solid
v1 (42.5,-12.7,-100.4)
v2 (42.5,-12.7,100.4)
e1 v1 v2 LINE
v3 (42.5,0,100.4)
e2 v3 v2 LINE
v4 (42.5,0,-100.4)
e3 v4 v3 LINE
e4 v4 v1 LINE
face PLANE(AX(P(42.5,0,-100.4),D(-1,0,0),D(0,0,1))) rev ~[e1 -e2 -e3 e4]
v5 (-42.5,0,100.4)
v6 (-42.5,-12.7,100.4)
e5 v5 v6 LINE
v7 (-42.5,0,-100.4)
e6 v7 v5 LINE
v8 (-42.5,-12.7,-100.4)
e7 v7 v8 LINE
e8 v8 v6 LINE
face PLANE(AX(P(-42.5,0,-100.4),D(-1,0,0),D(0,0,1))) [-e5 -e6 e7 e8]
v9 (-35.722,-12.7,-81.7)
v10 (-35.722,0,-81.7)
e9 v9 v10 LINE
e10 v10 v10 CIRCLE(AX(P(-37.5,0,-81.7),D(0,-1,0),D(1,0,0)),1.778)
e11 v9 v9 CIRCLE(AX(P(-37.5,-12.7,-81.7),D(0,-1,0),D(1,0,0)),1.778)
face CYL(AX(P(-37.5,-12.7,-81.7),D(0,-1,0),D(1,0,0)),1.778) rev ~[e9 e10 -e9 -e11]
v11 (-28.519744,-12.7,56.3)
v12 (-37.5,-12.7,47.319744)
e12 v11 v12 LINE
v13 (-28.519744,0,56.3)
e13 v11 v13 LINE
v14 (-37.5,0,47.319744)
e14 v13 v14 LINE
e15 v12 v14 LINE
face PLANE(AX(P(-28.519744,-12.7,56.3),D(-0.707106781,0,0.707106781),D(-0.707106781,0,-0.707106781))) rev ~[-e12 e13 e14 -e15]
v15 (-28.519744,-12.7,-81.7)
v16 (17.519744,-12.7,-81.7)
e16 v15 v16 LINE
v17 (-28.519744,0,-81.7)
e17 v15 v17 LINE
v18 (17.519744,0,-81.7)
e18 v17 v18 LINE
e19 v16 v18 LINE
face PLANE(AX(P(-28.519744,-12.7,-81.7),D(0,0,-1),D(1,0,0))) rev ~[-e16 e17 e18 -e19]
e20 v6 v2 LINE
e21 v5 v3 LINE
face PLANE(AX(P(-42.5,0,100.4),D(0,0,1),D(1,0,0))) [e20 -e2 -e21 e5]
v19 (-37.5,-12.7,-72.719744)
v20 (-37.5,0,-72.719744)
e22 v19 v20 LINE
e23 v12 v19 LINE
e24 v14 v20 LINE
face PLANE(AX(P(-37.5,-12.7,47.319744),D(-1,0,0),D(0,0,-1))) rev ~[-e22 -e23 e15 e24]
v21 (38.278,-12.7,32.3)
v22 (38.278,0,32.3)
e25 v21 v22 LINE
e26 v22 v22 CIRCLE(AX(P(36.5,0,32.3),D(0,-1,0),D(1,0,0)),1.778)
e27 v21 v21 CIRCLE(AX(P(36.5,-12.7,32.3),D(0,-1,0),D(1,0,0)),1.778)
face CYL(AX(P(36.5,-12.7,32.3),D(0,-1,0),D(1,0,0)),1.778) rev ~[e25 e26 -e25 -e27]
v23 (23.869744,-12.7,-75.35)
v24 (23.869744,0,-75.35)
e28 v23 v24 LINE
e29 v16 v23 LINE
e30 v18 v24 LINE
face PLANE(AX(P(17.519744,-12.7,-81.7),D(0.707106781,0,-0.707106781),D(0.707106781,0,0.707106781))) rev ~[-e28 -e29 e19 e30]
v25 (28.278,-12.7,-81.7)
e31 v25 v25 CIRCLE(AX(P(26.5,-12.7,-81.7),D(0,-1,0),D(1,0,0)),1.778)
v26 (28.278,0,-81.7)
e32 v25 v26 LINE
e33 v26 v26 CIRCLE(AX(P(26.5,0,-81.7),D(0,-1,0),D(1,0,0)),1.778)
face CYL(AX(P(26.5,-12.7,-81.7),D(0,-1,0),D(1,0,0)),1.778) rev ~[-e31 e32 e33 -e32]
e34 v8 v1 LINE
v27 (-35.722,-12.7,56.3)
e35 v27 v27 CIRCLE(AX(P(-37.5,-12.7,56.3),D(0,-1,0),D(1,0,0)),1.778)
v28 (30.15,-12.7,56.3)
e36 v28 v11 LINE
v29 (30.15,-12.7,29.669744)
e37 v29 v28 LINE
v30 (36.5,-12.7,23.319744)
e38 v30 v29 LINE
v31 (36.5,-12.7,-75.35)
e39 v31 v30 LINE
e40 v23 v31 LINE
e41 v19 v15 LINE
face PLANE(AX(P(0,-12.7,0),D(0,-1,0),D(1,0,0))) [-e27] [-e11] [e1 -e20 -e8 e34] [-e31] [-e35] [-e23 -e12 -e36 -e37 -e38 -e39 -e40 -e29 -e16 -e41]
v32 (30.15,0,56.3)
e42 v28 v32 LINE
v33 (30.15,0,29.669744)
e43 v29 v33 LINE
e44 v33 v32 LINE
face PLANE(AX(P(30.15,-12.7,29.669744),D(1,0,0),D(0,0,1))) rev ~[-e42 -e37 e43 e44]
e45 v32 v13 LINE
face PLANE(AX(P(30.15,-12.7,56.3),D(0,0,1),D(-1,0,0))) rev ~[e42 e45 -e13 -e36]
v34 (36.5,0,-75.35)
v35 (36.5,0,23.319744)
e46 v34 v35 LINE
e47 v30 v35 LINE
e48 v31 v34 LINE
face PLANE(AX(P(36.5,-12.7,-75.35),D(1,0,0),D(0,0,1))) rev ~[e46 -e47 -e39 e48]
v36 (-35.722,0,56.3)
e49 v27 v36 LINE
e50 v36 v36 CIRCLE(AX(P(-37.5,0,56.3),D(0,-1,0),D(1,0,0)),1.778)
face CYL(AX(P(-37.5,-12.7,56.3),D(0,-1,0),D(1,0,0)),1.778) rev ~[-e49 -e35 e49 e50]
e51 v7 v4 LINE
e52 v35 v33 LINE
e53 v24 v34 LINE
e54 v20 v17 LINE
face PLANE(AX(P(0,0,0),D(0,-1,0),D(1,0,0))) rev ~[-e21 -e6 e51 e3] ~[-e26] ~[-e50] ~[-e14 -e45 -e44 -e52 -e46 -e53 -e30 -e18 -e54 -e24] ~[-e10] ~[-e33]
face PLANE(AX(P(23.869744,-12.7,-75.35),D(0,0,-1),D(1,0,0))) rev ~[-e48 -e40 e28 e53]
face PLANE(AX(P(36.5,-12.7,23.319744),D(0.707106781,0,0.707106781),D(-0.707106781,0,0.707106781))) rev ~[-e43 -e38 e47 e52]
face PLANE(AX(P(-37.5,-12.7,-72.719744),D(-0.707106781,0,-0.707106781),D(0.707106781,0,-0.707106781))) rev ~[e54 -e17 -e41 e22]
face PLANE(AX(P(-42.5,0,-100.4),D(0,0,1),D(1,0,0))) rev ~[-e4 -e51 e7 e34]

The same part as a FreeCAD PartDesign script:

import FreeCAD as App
import Part
import Sketcher
from FreeCAD import Vector

doc = App.newDocument("Part")
body = doc.addObject("PartDesign::Body", "Body")

# Sketch on XZ plane
sketch1 = body.newObject("Sketcher::SketchObject", "Sketch")
sketch1.AttachmentSupport = (doc.getObject("XZ_Plane"), [""])
sketch1.MapMode = "FlatFace"
sketch1.addGeometry([
    Part.LineSegment(Vector(-42.5, 100.4, 0), Vector(-42.5, -100.4, 0)),
    Part.LineSegment(Vector(-42.5, -100.4, 0), Vector(42.5, -100.4, 0)),
    Part.LineSegment(Vector(42.5, -100.4, 0), Vector(42.5, 100.4, 0)),
    Part.LineSegment(Vector(42.5, 100.4, 0), Vector(-42.5, 100.4, 0)),
], False)
sketch1.addConstraint([
    Sketcher.Constraint("Coincident", 0, 2, 1, 1),
    Sketcher.Constraint("Coincident", 1, 2, 2, 1),
    Sketcher.Constraint("Coincident", 2, 2, 3, 1),
    Sketcher.Constraint("Coincident", 3, 2, 0, 1),
    Sketcher.Constraint("Vertical", 0),
    Sketcher.Constraint("Horizontal", 1),
    Sketcher.Constraint("Vertical", 2),
    Sketcher.Constraint("Horizontal", 3),
    Sketcher.Constraint("Symmetric", 0, 2, 2, 2, -1, 1),
    Sketcher.Constraint("DistanceX", 1, 1, 1, 2, 85.0),
    Sketcher.Constraint("DistanceY", 0, 2, 0, 1, 200.8),
])
pad1 = body.newObject("PartDesign::Pad", "Pad")
pad1.Profile = sketch1
pad1.Length = 12.7

# Sketch on XZ plane
sketch2 = body.newObject("Sketcher::SketchObject", "Sketch001")
sketch2.AttachmentSupport = (doc.getObject("XZ_Plane"), [""])
sketch2.MapMode = "FlatFace"
sketch2.AttachmentOffset = App.Placement(Vector(0, 0, 12.7), App.Rotation())
sketch2.addGeometry([
    Part.Circle(Vector(-37.5, 56.3, 0), Vector(0, 0, 1), 1.778),
    Part.Circle(Vector(36.5, 32.3, 0), Vector(0, 0, 1), 1.778),
    Part.Circle(Vector(26.5, -81.7, 0), Vector(0, 0, 1), 1.778),
    Part.Circle(Vector(-37.5, -81.7, 0), Vector(0, 0, 1), 1.778),
], False)
sketch2.addConstraint([
    Sketcher.Constraint("Equal", 0, 1),
    Sketcher.Constraint("Equal", 1, 2),
    Sketcher.Constraint("Equal", 2, 3),
    Sketcher.Constraint("Horizontal", 2, 3, 3, 3),
    Sketcher.Constraint("Vertical", 0, 3, 3, 3),
    Sketcher.Constraint("Diameter", 0, 3.556),
    Sketcher.Constraint("DistanceX", 0, 3, 1, 3, 74.0),
    Sketcher.Constraint("DistanceY", 1, 3, 0, 3, 24.0),
    Sketcher.Constraint("DistanceX", 2, 3, 1, 3, 10.0),
    Sketcher.Constraint("DistanceY", 2, 3, 1, 3, 114.0),
    Sketcher.Constraint("DistanceX", 0, 3, -1, 1, 37.5),
    Sketcher.Constraint("DistanceY", -1, 1, 0, 3, 56.3),
])
pocket1 = body.newObject("PartDesign::Pocket", "Pocket")
pocket1.Profile = sketch2
pocket1.Type = "ThroughAll"

# Sketch on XZ plane
sketch3 = body.newObject("Sketcher::SketchObject", "Sketch002")
sketch3.AttachmentSupport = (doc.getObject("XZ_Plane"), [""])
sketch3.MapMode = "FlatFace"
sketch3.AttachmentOffset = App.Placement(Vector(0, 0, 12.7), App.Rotation())
sketch3.addGeometry([
    Part.LineSegment(Vector(-28.519744, 56.3, 0), Vector(-37.5, 47.319744, 0)),  # 0
    Part.LineSegment(Vector(-37.5, 47.319744, 0), Vector(-37.5, -72.719744, 0)),  # 1
    Part.LineSegment(Vector(-37.5, -72.719744, 0), Vector(-28.519744, -81.7, 0)),  # 2
    Part.LineSegment(Vector(-28.519744, -81.7, 0), Vector(17.519744, -81.7, 0)),  # 3
    Part.LineSegment(Vector(17.519744, -81.7, 0), Vector(23.869744, -75.35, 0)),  # 4
    Part.LineSegment(Vector(23.869744, -75.35, 0), Vector(36.5, -75.35, 0)),  # 5
    Part.LineSegment(Vector(36.5, -75.35, 0), Vector(36.5, 23.319744, 0)),  # 6
    Part.LineSegment(Vector(36.5, 23.319744, 0), Vector(30.15, 29.669744, 0)),  # 7
    Part.LineSegment(Vector(30.15, 29.669744, 0), Vector(30.15, 56.3, 0)),  # 8
    Part.LineSegment(Vector(30.15, 56.3, 0), Vector(-28.519744, 56.3, 0)),  # 9
    Part.Circle(Vector(36.5, 32.3, 0), Vector(0, 0, 1), 1.778),  # 10
    Part.Circle(Vector(-37.5, -81.7, 0), Vector(0, 0, 1), 1.778),  # 11
    Part.Circle(Vector(26.5, -81.7, 0), Vector(0, 0, 1), 1.778),  # 12
], False)
sketch3.addConstraint([
    Sketcher.Constraint("Coincident", 0, 2, 1, 1),
    Sketcher.Constraint("Coincident", 1, 2, 2, 1),
    Sketcher.Constraint("Coincident", 2, 2, 3, 1),
    Sketcher.Constraint("Coincident", 3, 2, 4, 1),
    Sketcher.Constraint("Coincident", 4, 2, 5, 1),
    Sketcher.Constraint("Coincident", 5, 2, 6, 1),
    Sketcher.Constraint("Coincident", 6, 2, 7, 1),
    Sketcher.Constraint("Coincident", 7, 2, 8, 1),
    Sketcher.Constraint("Coincident", 8, 2, 9, 1),
    Sketcher.Constraint("Coincident", 9, 2, 0, 1),
    Sketcher.Constraint("Vertical", 1),
    Sketcher.Constraint("Horizontal", 3),
    Sketcher.Constraint("Horizontal", 5),
    Sketcher.Constraint("Vertical", 6),
    Sketcher.Constraint("Vertical", 8),
    Sketcher.Constraint("Horizontal", 9),
    Sketcher.Constraint("Equal", 10, 11),
    Sketcher.Constraint("Equal", 11, 12),
    Sketcher.Constraint("Perpendicular", 0, 2),
    Sketcher.Constraint("Perpendicular", 2, 4),
    Sketcher.Constraint("Perpendicular", 4, 7),
    Sketcher.Constraint("Horizontal", 11, 3, 12, 3),
    Sketcher.Constraint("Horizontal", 12, 3, 2, 2),
    Sketcher.Constraint("Vertical", 11, 3, 0, 2),
    Sketcher.Constraint("Vertical", 10, 3, 5, 2),
    Sketcher.Constraint("Vertical", 2, 2, 9, 2),
    Sketcher.Constraint("Equal", 0, 2),
    Sketcher.Constraint("Equal", 4, 7),
    Sketcher.Constraint("Diameter", 10, 3.556),
    Sketcher.Constraint("DistanceX", 11, 3, 10, 3, 74.0),
    Sketcher.Constraint("DistanceY", 11, 3, 10, 3, 114.0),
    Sketcher.Constraint("DistanceX", 11, 3, 12, 3, 64.0),
    Sketcher.Constraint("DistanceY", 6, 2, 0, 2, 24.0),
    Sketcher.Constraint("DistanceY", 10, 3, 8, 2, 24.0),
    Sketcher.Constraint("Distance", 0, 12.7),
    Sketcher.Constraint("DistanceX", -1, 1, 10, 3, 36.5),
    Sketcher.Constraint("DistanceY", -1, 1, 10, 3, 32.3),
    Sketcher.Constraint("DistanceY", 4, 2, -1, 1, 75.35),
    Sketcher.Constraint("DistanceX", 3, 1, 3, 2, 46.039488),
])
pocket2 = body.newObject("PartDesign::Pocket", "Pocket001")
pocket2.Profile = sketch3
pocket2.Type = "ThroughAll"

doc.recompute()
